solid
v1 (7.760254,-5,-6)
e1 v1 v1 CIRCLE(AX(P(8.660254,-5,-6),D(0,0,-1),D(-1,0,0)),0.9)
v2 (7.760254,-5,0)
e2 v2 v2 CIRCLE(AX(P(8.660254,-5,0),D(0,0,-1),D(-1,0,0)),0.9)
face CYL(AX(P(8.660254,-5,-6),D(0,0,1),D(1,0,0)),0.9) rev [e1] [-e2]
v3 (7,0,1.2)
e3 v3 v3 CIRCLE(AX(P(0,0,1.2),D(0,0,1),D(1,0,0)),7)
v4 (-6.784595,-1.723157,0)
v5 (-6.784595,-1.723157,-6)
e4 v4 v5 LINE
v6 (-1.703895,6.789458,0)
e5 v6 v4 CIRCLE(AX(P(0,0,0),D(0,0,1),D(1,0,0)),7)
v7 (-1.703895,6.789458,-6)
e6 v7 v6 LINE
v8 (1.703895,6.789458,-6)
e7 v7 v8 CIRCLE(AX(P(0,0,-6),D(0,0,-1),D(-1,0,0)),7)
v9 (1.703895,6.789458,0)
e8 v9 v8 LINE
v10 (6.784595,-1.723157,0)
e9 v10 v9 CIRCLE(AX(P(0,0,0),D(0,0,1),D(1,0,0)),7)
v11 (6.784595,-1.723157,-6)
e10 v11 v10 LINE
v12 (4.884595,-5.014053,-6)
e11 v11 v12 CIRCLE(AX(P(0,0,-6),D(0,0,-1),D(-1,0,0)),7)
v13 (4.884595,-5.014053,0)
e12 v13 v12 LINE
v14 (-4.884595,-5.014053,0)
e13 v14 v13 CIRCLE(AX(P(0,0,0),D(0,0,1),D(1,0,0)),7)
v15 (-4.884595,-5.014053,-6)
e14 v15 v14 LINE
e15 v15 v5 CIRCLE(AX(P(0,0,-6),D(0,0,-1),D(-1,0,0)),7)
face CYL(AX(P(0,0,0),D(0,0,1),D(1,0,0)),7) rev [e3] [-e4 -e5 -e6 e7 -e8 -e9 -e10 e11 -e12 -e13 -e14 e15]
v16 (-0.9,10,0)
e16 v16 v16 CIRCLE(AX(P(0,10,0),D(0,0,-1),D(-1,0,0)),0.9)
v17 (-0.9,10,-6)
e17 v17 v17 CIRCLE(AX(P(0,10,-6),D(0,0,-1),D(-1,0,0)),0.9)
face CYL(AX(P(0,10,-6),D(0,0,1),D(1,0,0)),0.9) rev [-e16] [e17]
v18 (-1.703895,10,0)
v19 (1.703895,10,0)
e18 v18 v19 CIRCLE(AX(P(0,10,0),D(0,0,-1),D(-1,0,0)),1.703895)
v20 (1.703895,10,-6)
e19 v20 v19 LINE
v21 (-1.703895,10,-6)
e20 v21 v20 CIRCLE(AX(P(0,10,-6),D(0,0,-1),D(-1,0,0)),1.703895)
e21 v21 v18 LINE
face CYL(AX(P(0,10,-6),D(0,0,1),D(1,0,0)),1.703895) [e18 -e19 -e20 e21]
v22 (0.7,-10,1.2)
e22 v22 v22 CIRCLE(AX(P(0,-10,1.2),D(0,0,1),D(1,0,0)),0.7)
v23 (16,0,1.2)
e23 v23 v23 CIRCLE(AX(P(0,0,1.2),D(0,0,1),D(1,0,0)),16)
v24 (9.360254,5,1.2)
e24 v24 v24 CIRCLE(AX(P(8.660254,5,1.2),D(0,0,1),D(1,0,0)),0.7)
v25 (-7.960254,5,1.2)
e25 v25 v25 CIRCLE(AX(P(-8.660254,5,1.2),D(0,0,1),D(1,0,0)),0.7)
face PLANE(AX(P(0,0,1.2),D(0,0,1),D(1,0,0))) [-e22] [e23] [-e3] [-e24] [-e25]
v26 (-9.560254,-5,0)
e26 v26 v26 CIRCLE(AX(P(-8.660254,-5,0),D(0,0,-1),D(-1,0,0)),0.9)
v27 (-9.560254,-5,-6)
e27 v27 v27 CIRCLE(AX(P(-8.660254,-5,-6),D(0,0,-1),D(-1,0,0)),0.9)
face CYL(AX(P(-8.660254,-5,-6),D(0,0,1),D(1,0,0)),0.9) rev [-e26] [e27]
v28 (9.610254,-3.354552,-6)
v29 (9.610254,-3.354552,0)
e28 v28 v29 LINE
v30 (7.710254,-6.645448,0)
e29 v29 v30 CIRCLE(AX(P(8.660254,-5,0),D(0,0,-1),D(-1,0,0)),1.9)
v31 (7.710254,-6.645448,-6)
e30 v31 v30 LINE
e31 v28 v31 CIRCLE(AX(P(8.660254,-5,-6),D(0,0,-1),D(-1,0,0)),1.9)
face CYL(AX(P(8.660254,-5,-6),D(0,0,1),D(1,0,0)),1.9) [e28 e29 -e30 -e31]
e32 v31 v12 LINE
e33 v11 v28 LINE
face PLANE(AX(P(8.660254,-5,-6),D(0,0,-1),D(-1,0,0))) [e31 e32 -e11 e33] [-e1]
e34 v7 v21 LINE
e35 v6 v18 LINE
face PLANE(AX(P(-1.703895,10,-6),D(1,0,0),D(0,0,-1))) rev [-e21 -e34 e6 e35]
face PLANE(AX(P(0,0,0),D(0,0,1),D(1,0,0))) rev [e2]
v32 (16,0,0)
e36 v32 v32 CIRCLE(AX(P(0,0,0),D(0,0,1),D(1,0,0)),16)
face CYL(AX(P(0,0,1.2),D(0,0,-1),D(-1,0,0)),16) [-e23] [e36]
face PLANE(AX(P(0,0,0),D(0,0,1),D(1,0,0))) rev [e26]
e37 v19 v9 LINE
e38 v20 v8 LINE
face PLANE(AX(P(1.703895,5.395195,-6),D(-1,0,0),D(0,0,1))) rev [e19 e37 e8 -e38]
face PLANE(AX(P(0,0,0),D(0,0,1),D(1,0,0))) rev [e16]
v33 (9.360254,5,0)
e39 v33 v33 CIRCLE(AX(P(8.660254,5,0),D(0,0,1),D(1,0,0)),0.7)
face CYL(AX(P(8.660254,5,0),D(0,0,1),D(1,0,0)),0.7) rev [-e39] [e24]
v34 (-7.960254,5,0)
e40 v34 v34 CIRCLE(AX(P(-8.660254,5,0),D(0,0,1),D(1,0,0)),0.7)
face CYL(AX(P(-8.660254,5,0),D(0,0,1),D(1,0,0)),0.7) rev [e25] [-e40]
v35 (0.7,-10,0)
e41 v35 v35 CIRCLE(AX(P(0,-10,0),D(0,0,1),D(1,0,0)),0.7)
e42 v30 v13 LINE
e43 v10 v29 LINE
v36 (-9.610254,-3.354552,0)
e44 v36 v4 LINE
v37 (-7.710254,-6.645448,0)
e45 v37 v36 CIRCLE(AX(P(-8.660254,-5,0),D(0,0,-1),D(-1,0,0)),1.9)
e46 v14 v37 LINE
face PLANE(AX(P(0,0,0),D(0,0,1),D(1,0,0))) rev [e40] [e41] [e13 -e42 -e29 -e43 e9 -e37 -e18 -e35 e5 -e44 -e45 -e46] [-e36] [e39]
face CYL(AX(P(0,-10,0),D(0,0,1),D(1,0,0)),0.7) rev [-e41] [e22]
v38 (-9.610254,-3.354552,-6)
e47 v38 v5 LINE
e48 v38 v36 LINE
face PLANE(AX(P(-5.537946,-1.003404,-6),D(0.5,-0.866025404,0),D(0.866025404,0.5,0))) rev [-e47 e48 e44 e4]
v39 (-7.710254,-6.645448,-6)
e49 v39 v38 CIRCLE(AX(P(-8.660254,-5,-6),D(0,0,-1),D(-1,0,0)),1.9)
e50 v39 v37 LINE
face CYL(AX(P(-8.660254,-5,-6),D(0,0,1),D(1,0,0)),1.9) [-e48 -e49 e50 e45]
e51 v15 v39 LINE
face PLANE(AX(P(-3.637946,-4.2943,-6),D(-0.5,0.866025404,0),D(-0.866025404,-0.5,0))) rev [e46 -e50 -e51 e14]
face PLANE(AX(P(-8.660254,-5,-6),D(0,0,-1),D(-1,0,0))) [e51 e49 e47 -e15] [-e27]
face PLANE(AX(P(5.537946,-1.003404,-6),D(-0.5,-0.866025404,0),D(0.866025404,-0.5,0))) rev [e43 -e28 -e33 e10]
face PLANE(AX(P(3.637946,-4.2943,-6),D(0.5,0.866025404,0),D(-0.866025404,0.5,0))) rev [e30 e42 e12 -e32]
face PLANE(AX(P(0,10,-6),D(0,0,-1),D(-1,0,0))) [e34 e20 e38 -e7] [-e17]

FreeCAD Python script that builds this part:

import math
import FreeCAD as App
import Part
import Sketcher
Q = App.Units.Quantity

doc = App.newDocument("Part")
body = doc.addObject("PartDesign::Body", "Body")

# Sketch on XY plane
sketch1 = body.newObject("Sketcher::SketchObject", "Sketch")
sketch1.AttachmentSupport = (doc.getObject("XY_Plane"), [""])
sketch1.MapMode = "FlatFace"
sketch1.addGeometry(Part.Circle(App.Vector(0, 0, 0), App.Vector(0, 0, 1), 16), False)
sketch1.addConstraint([
    Sketcher.Constraint("Coincident", 0, 3, -1, 1),
    Sketcher.Constraint("Diameter", 0, Q("32 mm")),
])
pad1 = body.newObject("PartDesign::Pad", "Pad")
pad1.Profile = sketch1
pad1.Length = 1.2

# Sketch on XY plane
sketch2 = body.newObject("Sketcher::SketchObject", "Sketch001")
sketch2.AttachmentSupport = (doc.getObject("XY_Plane"), [""])
sketch2.MapMode = "FlatFace"
sketch2.AttachmentOffset = App.Placement(App.Vector(0, 0, 1.2), App.Rotation())
sketch2.addGeometry(Part.Circle(App.Vector(0, 0, 0), App.Vector(0, 0, 1), 7), False)
sketch2.addConstraint([
    Sketcher.Constraint("Coincident", 0, 3, -1, 1),
    Sketcher.Constraint("Diameter", 0, Q("14 mm")),
])
pocket1 = body.newObject("PartDesign::Pocket", "Pocket")
pocket1.Profile = sketch2
pocket1.Length = 1.2

# Sketch on XY plane
sketch3 = body.newObject("Sketcher::SketchObject", "Sketch002")
sketch3.AttachmentSupport = (doc.getObject("XY_Plane"), [""])
sketch3.MapMode = "FlatFace"
sketch3.AttachmentOffset = App.Placement(App.Vector(0, 0, 1.2), App.Rotation())
sketch3.addGeometry([
    Part.Circle(App.Vector(8.7, 5, 0), App.Vector(0, 0, 1), 0.7),
    Part.Circle(App.Vector(0, -10, 0), App.Vector(0, 0, 1), 0.7),
    Part.Circle(App.Vector(-8.7, 5, 0), App.Vector(0, 0, 1), 0.7),
], False)
sketch3.addConstraint([
    Sketcher.Constraint("Equal", 0, 1),
    Sketcher.Constraint("Equal", 1, 2),
    Sketcher.Constraint("Symmetric", 0, 3, 2, 3, -2),
    Sketcher.Constraint("PointOnObject", 1, 3, -2),
    Sketcher.Constraint("Diameter", 0, Q("1.4 mm")),
    Sketcher.Constraint("DistanceY", -1, 1, 0, 3, Q("5 mm")),
    Sketcher.Constraint("DistanceY", 1, 3, -1, 1, Q("10 mm")),
    Sketcher.Constraint("DistanceX", 2, 3, 0, 3, Q("17.320508 mm")),
])
pocket2 = body.newObject("PartDesign::Pocket", "Pocket001")
pocket2.Profile = sketch3
pocket2.Length = 1.2

# Sketch on XY plane
sketch4 = body.newObject("Sketcher::SketchObject", "Sketch003")
sketch4.AttachmentSupport = (doc.getObject("XY_Plane"), [""])
sketch4.MapMode = "FlatFace"
sketch4.addGeometry([
    Part.LineSegment(App.Vector(-1.7, 5.4, 0), App.Vector(-1.7, 10, 0)),  # 0
    Part.ArcOfCircle(Part.Circle(App.Vector(0, 10, 0), App.Vector(0, 0, 1), 1.7), math.radians(0), math.radians(180)),  # 1
    Part.LineSegment(App.Vector(1.7, 10, 0), App.Vector(1.7, 5.4, 0)),  # 2
    Part.LineSegment(App.Vector(1.7, 5.4, 0), App.Vector(-1.7, 5.4, 0)),  # 3
    Part.Circle(App.Vector(0, 10, 0), App.Vector(0, 0, 1), 0.9),  # 4
    Part.LineSegment(App.Vector(3.6, -4.3, 0), App.Vector(5.5, -1, 0)),  # 5
    Part.LineSegment(App.Vector(5.5, -1, 0), App.Vector(9.6, -3.4, 0)),  # 6
    Part.ArcOfCircle(Part.Circle(App.Vector(8.7, -5, 0), App.Vector(0, 0, 1), 1.9), math.radians(-120), math.radians(60)),  # 7
    Part.LineSegment(App.Vector(7.7, -6.6, 0), App.Vector(3.6, -4.3, 0)),  # 8
    Part.Circle(App.Vector(8.7, -5, 0), App.Vector(0, 0, 1), 0.9),  # 9
    Part.LineSegment(App.Vector(-5.5, -1, 0), App.Vector(-3.6, -4.3, 0)),  # 10
    Part.LineSegment(App.Vector(-3.6, -4.3, 0), App.Vector(-7.7, -6.6, 0)),  # 11
    Part.ArcOfCircle(Part.Circle(App.Vector(-8.7, -5, 0), App.Vector(0, 0, 1), 1.9), math.radians(120), math.radians(300)),  # 12
    Part.LineSegment(App.Vector(-9.6, -3.4, 0), App.Vector(-5.5, -1, 0)),  # 13
    Part.Circle(App.Vector(-8.7, -5, 0), App.Vector(0, 0, 1), 0.9),  # 14
], False)
sketch4.addConstraint([
    Sketcher.Constraint("Tangent", 0, 2, 1, 2),
    Sketcher.Constraint("Tangent", 1, 1, 2, 1),
    Sketcher.Constraint("Coincident", 2, 2, 3, 1),
    Sketcher.Constraint("Coincident", 3, 2, 0, 1),
    Sketcher.Constraint("Coincident", 5, 2, 6, 1),
    Sketcher.Constraint("Tangent", 6, 2, 7, 2),
    Sketcher.Constraint("Tangent", 7, 1, 8, 1),
    Sketcher.Constraint("Coincident", 8, 2, 5, 1),
    Sketcher.Constraint("Coincident", 10, 2, 11, 1),
    Sketcher.Constraint("Tangent", 11, 2, 12, 2),
    Sketcher.Constraint("Tangent", 12, 1, 13, 1),
    Sketcher.Constraint("Coincident", 13, 2, 10, 1),
    Sketcher.Constraint("Vertical", 0),
    Sketcher.Constraint("Vertical", 2),
    Sketcher.Constraint("Horizontal", 3),
    Sketcher.Constraint("Coincident", 4, 3, 1, 3),
    Sketcher.Constraint("Coincident", 9, 3, 7, 3),
    Sketcher.Constraint("Coincident", 14, 3, 12, 3),
    Sketcher.Constraint("Equal", 4, 9),
    Sketcher.Constraint("Equal", 7, 12),
    Sketcher.Constraint("Equal", 9, 14),
    Sketcher.Constraint("Symmetric", 7, 3, 12, 3, -2),
    Sketcher.Constraint("Symmetric", 8, 2, 10, 2, -2),
    Sketcher.Constraint("Symmetric", 5, 2, 13, 2, -2),
    Sketcher.Constraint("PointOnObject", 1, 3, -2),
    Sketcher.Constraint("Perpendicular", 5, 6),
    Sketcher.Constraint("Parallel", 6, 8),
    Sketcher.Constraint("Diameter", 4, Q("1.8 mm")),
    Sketcher.Constraint("Radius", 7, Q("1.9 mm")),
    Sketcher.Constraint("Angle", 5, Q("60 deg")),
    Sketcher.Constraint("DistanceY", -1, 1, 1, 3, Q("10 mm")),
    Sketcher.Constraint("DistanceY", 7, 3, -1, 1, Q("5 mm")),
    Sketcher.Constraint("Radius", 1, Q("1.703895 mm")),
    Sketcher.Constraint("DistanceY", 8, 2, -1, 1, Q("4.2943 mm")),
    Sketcher.Constraint("DistanceY", 5, 2, 2, 2, Q("6.398599 mm")),
    Sketcher.Constraint("DistanceX", 11, 2, 8, 2, Q("11.3482 mm")),
])
pad2 = body.newObject("PartDesign::Pad", "Pad001")
pad2.Profile = sketch4
pad2.Length = 6
pad2.Reversed = True

# Sketch on XY plane
sketch5 = body.newObject("Sketcher::SketchObject", "Sketch004")
sketch5.AttachmentSupport = (doc.getObject("XY_Plane"), [""])
sketch5.MapMode = "FlatFace"
sketch5.AttachmentOffset = App.Placement(App.Vector(0, 0, 1.2), App.Rotation())
sketch5.addGeometry(Part.Circle(App.Vector(0, 0, 0), App.Vector(0, 0, 1), 7), False)
sketch5.addConstraint([
    Sketcher.Constraint("Coincident", 0, 3, -1, 1),
    Sketcher.Constraint("Diameter", 0, Q("14 mm")),
])
pocket3 = body.newObject("PartDesign::Pocket", "Pocket002")
pocket3.Profile = sketch5
pocket3.Length = 11

doc.recompute()
